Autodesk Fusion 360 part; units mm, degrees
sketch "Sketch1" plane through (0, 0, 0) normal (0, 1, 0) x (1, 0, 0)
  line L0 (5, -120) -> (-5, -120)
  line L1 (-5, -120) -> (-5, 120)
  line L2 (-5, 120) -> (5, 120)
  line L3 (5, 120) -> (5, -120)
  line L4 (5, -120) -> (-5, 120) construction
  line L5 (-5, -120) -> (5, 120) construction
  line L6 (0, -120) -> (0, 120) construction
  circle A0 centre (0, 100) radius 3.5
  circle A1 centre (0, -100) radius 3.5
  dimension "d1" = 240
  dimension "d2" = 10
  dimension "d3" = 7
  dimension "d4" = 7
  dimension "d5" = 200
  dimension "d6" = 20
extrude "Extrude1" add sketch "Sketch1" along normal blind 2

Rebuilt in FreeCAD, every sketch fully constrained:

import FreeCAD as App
import Part
import Sketcher


def add_polygon(sketch, points):
    """Adds a closed chain of lines whose ends are joined by coincident constraints."""
    first, n = sketch.GeometryCount, len(points)
    for a, b in zip(points, points[1:] + points[:1]):
        sketch.addGeometry(Part.LineSegment(App.Vector(*a, 0), App.Vector(*b, 0)), False)
    for i in range(n):
        sketch.addConstraint(Sketcher.Constraint("Coincident", first + i, 2, first + (i + 1) % n, 1))

doc = App.newDocument("Part")
body = doc.addObject("PartDesign::Body", "Body")

sketch1 = body.newObject("Sketcher::SketchObject", "Sketch")
sketch1.AttachmentSupport = (doc.getObject("XZ_Plane"), [""])
sketch1.MapMode = "FlatFace"
add_polygon(sketch1, [(-5, 120), (5, 120), (5, -120), (-5, -120)])
sketch1.addGeometry(Part.Circle(App.Vector(0, 100, 0), App.Vector(0, 0, 1), 3.5), False)
sketch1.addGeometry(Part.Circle(App.Vector(0, -100, 0), App.Vector(0, 0, 1), 3.5), False)
sketch1.addConstraint(Sketcher.Constraint("Horizontal", 0))
sketch1.addConstraint(Sketcher.Constraint("Vertical", 1))
sketch1.addConstraint(Sketcher.Constraint("Horizontal", 2))
sketch1.addConstraint(Sketcher.Constraint("Vertical", 3))
sketch1.addConstraint(Sketcher.Constraint("Equal", 4, 5))
sketch1.addConstraint(Sketcher.Constraint("Symmetric", 4, 3, 5, 3, -1, 1))
sketch1.addConstraint(Sketcher.Constraint("Symmetric", 0, 2, 2, 2, -1, 1))
sketch1.addConstraint(Sketcher.Constraint("PointOnObject", 4, 3, -2))
sketch1.addConstraint(Sketcher.Constraint("Diameter", 4, 7.0))
sketch1.addConstraint(Sketcher.Constraint("DistanceX", 0, 1, 0, 2, 10.0))
sketch1.addConstraint(Sketcher.Constraint("DistanceY", 1, 2, 1, 1, 240.0))
sketch1.addConstraint(Sketcher.Constraint("DistanceY", 5, 3, 4, 3, 200.0))
pad1 = body.newObject("PartDesign::Pad", "Pad")
pad1.Profile = sketch1
pad1.Length = 2
pad1.Reversed = True

doc.recompute()
